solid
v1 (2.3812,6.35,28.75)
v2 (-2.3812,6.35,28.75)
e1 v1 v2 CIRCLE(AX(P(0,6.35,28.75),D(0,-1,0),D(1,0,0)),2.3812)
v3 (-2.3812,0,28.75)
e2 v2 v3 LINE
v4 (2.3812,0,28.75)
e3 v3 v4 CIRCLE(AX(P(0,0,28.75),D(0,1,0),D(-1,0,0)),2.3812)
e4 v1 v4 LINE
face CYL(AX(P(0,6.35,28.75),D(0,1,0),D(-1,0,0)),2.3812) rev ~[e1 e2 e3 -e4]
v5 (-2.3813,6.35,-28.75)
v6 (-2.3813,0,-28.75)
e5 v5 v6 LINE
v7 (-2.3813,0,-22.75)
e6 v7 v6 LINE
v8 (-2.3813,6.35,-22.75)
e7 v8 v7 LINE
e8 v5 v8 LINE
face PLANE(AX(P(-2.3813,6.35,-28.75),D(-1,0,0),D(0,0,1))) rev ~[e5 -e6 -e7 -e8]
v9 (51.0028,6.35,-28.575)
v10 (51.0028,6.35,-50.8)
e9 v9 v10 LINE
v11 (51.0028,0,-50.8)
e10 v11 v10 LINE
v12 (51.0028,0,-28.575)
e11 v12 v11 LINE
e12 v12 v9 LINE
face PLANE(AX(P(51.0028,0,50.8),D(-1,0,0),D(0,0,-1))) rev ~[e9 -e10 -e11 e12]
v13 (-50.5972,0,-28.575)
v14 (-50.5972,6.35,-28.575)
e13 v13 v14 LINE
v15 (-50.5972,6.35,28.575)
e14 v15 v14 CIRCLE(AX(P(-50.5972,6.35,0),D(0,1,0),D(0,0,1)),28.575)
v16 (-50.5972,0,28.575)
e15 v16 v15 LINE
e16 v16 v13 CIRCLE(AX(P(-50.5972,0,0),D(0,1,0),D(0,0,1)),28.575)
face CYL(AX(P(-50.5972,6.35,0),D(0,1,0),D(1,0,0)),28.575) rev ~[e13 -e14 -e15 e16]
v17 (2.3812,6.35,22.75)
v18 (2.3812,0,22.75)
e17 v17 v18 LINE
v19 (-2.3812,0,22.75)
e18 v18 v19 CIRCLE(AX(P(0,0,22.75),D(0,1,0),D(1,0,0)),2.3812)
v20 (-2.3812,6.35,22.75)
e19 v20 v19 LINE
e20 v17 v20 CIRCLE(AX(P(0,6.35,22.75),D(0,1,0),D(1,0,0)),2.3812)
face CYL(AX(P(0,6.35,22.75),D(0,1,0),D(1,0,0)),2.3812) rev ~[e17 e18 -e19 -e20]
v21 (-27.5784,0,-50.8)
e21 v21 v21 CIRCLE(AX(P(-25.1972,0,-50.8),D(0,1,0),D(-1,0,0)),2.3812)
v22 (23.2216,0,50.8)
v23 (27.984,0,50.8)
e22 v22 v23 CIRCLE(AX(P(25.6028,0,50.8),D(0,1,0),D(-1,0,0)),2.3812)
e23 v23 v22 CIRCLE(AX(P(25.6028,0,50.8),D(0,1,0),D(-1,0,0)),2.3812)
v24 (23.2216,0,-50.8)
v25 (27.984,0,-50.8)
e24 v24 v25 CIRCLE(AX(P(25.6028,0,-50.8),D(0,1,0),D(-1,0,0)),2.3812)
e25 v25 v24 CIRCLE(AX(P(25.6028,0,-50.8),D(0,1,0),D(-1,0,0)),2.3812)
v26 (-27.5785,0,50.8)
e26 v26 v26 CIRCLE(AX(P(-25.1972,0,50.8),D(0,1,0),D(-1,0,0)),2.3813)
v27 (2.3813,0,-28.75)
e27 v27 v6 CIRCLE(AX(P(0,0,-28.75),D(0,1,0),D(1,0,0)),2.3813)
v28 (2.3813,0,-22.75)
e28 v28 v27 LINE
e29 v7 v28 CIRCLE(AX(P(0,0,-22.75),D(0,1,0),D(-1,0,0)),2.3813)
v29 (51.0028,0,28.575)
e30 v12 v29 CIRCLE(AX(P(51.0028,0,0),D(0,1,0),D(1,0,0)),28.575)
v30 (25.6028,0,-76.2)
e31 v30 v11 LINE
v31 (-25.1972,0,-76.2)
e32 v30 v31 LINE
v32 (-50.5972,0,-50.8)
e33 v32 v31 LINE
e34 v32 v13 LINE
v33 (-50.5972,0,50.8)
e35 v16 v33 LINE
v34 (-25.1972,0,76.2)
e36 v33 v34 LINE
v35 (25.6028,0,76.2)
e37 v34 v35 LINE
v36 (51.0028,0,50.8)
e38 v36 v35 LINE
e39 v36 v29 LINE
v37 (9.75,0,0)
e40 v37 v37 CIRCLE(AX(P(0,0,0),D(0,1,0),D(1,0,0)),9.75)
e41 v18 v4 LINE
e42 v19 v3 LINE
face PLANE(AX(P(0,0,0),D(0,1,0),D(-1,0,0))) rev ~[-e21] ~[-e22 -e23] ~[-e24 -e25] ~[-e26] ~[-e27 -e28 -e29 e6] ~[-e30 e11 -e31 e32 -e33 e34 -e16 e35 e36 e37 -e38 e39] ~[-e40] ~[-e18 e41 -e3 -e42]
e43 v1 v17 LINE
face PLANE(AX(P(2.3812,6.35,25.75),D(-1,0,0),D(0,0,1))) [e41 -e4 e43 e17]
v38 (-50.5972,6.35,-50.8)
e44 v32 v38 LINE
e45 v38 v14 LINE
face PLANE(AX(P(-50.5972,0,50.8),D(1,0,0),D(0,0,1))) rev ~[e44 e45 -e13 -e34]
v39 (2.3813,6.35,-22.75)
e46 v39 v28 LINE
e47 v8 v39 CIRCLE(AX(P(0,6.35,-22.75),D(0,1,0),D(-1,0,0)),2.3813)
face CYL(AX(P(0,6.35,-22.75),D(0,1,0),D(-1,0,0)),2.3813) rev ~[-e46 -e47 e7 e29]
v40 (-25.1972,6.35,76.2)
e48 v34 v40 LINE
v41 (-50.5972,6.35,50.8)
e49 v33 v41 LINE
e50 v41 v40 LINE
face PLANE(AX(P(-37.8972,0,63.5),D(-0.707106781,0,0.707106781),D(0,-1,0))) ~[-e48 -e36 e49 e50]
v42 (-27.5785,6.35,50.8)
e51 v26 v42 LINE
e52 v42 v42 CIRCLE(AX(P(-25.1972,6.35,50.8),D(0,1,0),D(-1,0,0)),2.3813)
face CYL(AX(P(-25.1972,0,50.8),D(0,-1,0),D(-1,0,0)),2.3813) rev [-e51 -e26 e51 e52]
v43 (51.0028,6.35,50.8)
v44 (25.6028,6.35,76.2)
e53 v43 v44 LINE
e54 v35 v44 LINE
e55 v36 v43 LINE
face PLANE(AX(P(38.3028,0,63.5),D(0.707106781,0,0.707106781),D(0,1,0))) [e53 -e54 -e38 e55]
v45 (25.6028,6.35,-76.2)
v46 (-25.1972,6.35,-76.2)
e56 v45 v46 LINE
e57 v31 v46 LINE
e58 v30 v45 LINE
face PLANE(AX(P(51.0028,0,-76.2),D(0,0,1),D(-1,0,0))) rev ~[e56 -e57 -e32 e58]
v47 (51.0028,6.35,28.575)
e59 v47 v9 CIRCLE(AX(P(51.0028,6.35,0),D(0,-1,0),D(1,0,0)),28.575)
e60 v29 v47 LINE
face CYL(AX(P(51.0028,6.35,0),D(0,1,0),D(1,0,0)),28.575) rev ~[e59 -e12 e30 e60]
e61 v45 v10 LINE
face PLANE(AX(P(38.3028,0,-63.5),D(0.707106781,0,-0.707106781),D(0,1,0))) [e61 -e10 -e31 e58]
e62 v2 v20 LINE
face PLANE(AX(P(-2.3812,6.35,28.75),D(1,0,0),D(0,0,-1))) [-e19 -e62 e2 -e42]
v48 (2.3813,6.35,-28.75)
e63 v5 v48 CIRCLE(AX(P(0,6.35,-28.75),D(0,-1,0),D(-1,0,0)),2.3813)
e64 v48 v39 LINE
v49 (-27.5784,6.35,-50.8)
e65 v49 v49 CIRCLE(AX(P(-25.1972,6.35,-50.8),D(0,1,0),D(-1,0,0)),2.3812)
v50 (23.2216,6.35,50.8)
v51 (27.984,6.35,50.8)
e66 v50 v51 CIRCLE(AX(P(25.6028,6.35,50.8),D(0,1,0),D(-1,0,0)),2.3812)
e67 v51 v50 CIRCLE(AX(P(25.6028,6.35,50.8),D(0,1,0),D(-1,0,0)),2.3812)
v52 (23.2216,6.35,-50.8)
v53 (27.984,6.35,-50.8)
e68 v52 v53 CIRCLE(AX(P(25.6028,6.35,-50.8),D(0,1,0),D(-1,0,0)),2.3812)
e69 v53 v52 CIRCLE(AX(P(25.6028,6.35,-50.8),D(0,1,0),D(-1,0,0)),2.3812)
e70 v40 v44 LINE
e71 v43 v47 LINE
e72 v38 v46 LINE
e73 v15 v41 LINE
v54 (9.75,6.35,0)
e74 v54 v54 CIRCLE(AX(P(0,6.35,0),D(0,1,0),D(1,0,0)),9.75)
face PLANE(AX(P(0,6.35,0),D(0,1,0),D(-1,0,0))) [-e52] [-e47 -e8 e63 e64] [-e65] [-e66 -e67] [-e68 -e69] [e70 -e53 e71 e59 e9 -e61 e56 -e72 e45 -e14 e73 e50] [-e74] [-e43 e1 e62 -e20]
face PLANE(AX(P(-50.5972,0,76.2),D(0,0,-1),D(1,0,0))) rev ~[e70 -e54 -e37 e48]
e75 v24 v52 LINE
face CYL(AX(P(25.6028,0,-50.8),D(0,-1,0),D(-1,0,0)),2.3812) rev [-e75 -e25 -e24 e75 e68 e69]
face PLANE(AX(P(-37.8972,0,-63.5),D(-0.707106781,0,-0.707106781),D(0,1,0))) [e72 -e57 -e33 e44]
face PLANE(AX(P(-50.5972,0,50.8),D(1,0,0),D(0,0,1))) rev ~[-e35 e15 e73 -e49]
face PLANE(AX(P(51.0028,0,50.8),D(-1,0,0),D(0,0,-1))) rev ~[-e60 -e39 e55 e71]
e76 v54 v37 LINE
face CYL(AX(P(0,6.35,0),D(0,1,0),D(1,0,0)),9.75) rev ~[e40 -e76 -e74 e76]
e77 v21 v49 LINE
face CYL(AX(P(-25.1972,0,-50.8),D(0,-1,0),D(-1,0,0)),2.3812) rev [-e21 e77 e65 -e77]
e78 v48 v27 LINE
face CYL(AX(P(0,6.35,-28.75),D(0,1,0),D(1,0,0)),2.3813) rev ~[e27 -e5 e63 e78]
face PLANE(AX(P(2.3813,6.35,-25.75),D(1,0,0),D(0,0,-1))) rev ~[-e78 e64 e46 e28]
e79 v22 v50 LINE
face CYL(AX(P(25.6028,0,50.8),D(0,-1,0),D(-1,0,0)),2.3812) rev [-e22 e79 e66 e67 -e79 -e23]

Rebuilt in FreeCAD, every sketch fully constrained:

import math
import FreeCAD as App
import Part
import Sketcher
from FreeCAD import Vector
Q = App.Units.Quantity


def edges_at(feature, points):
    """Names of the edges that pass closest to the given points."""
    edges = feature.Shape.Edges
    near = lambda p: min(range(len(edges)), key=lambda i: edges[i].distToShape(Part.Vertex(*p))[0])
    return sorted({f"Edge{near(p) + 1}" for p in points})


def add_polygon(sketch, points):
    """Adds a closed chain of lines whose ends are joined by coincident constraints."""
    first, n = sketch.GeometryCount, len(points)
    for a, b in zip(points, points[1:] + points[:1]):
        sketch.addGeometry(Part.LineSegment(App.Vector(*a, 0), App.Vector(*b, 0)), False)
    for i in range(n):
        sketch.addConstraint(Sketcher.Constraint("Coincident", first + i, 2, first + (i + 1) % n, 1))

doc = App.newDocument("Part")
body = doc.addObject("PartDesign::Body", "Body")

sketch1 = body.newObject("Sketcher::SketchObject", "Sketch")
sketch1.AttachmentSupport = (doc.getObject("XZ_Plane"), [""])
sketch1.MapMode = "FlatFace"
add_polygon(sketch1, [(51, -50.8), (51, -76.2), (-50.6, -76.2), (-50.6, -50.8), (-50.6, 50.8), (-50.6, 76.2), (51, 76.2), (51, 50.8)])
sketch1.addGeometry(Part.ArcOfCircle(Part.Circle(Vector(0.2, 19.4, 0), Vector(0, 0, 1), 2.4), math.radians(180), math.radians(360)), False)
sketch1.addGeometry(Part.LineSegment(Vector(2.6, 19.4, 0), Vector(2.6, 32.1, 0)), False)
sketch1.addGeometry(Part.ArcOfCircle(Part.Circle(Vector(0.2, 32.1, 0), Vector(0, 0, 1), 2.4), math.radians(0), math.radians(180)), False)
sketch1.addGeometry(Part.LineSegment(Vector(-2.2, 32.1, 0), Vector(-2.2, 19.4, 0)), False)
sketch1.addGeometry(Part.LineSegment(Vector(-2.2, -19.4, 0), Vector(-2.2, -32.1, 0)), False)
sketch1.addGeometry(Part.ArcOfCircle(Part.Circle(Vector(0.2, -32.1, 0), Vector(0, 0, 1), 2.4), math.radians(180), math.radians(360)), False)
sketch1.addGeometry(Part.LineSegment(Vector(2.6, -32.1, 0), Vector(2.6, -19.4, 0)), False)
sketch1.addGeometry(Part.ArcOfCircle(Part.Circle(Vector(0.2, -19.4, 0), Vector(0, 0, 1), 2.4), math.radians(0), math.radians(180)), False)
sketch1.addGeometry(Part.Circle(Vector(25.6, -50.8, 0), Vector(0, 0, 1), 2.4), False)
sketch1.addGeometry(Part.Circle(Vector(-25.2, -50.8, 0), Vector(0, 0, 1), 2.4), False)
sketch1.addGeometry(Part.Circle(Vector(25.6, 50.8, 0), Vector(0, 0, 1), 2.4), False)
sketch1.addGeometry(Part.Circle(Vector(-25.2, 50.8, 0), Vector(0, 0, 1), 2.4), False)
sketch1.addConstraint([
    Sketcher.Constraint("Tangent", 8, 2, 9, 1),
    Sketcher.Constraint("Tangent", 9, 2, 10, 1),
    Sketcher.Constraint("Tangent", 10, 2, 11, 1),
    Sketcher.Constraint("Tangent", 11, 2, 8, 1),
    Sketcher.Constraint("Tangent", 12, 2, 13, 1),
    Sketcher.Constraint("Tangent", 13, 2, 14, 1),
    Sketcher.Constraint("Tangent", 14, 2, 15, 1),
    Sketcher.Constraint("Tangent", 15, 2, 12, 1),
    Sketcher.Constraint("Vertical", 0),
    Sketcher.Constraint("Horizontal", 1),
    Sketcher.Constraint("Vertical", 2),
    Sketcher.Constraint("Vertical", 3),
    Sketcher.Constraint("Vertical", 4),
    Sketcher.Constraint("Horizontal", 5),
    Sketcher.Constraint("Vertical", 6),
    Sketcher.Constraint("Vertical", 7),
    Sketcher.Constraint("Vertical", 9),
    Sketcher.Constraint("Vertical", 11),
    Sketcher.Constraint("Vertical", 12),
    Sketcher.Constraint("Vertical", 14),
    Sketcher.Constraint("Equal", 10, 13),
    Sketcher.Constraint("Equal", 15, 16),
    Sketcher.Constraint("Equal", 16, 17),
    Sketcher.Constraint("Equal", 17, 18),
    Sketcher.Constraint("Equal", 18, 19),
    Sketcher.Constraint("Symmetric", 10, 3, 13, 3, -1),
    Sketcher.Constraint("Symmetric", 16, 3, 18, 3, -1),
    Sketcher.Constraint("Symmetric", 17, 3, 19, 3, -1),
    Sketcher.Constraint("Horizontal", 16, 3, 17, 3),
    Sketcher.Constraint("Horizontal", 17, 3, 2, 2),
    Sketcher.Constraint("Horizontal", 19, 3, 3, 2),
    Sketcher.Constraint("Horizontal", 3, 2, 6, 2),
    Sketcher.Constraint("Horizontal", 2, 2, 7, 2),
    Sketcher.Constraint("Equal", 5, 3),
    Sketcher.Constraint("Equal", 2, 4),
    Sketcher.Constraint("Equal", 11, 12),
    Sketcher.Constraint("DistanceX", 1, 2, 1, 1, Q("4 in")),
    Sketcher.Constraint("DistanceY", 0, 2, 0, 1, Q("1 in")),
    Sketcher.Constraint("Diameter", 16, Q("0.1875 in")),
    Sketcher.Constraint("DistanceX", 13, 3, 16, 3, Q("1 in")),
    Sketcher.Constraint("DistanceX", 17, 3, 13, 3, Q("1 in")),
    Sketcher.Constraint("DistanceX", 16, 3, 0, 2, Q("1 in")),
    Sketcher.Constraint("DistanceY", 9, 1, 9, 2, Q("0.5 in")),
    Sketcher.Constraint("DistanceX", -1, 1, 8, 3, Q("0.2028 mm")),
    Sketcher.Constraint("DistanceY", -1, 1, 8, 3, Q("19.4 mm")),
])
pad1 = body.newObject("PartDesign::Pad", "Pad")
pad1.Profile = sketch1
pad1.Length = Q("0.25 in")
pad1.Reversed = True

sketch2 = body.newObject("Sketcher::SketchObject", "Sketch001")
sketch2.AttachmentSupport = (doc.getObject("XZ_Plane"), [""])
sketch2.MapMode = "FlatFace"
sketch2.AttachmentOffset = App.Placement(Vector(0, 0, -0.25 * 25.4), App.Rotation())
sketch2.addGeometry(Part.Circle(Vector(0, 0, 0), Vector(0, 0, 1), 10), False)
sketch2.addConstraint([
    Sketcher.Constraint("Coincident", 0, 3, -1, 1),
    Sketcher.Constraint("Diameter", 0, Q("19.5 mm")),
])
pocket1 = body.newObject("PartDesign::Pocket", "Pocket")
pocket1.Profile = sketch2
pocket1.Length = Q("0.25 in")
pocket1.Reversed = True

sketch3 = body.newObject("Sketcher::SketchObject", "Sketch002")
sketch3.AttachmentSupport = (doc.getObject("XZ_Plane"), [""])
sketch3.MapMode = "FlatFace"
sketch3.AttachmentOffset = App.Placement(Vector(0, 0, -0.25 * 25.4), App.Rotation())
add_polygon(sketch3, [(-7, 16), (-7, 38), (10, 38), (10, 16)])
add_polygon(sketch3, [(-9, -42), (-9, -15), (5, -15), (5, -42)])
sketch3.addConstraint([
    Sketcher.Constraint("Vertical", 0),
    Sketcher.Constraint("Horizontal", 1),
    Sketcher.Constraint("Vertical", 2),
    Sketcher.Constraint("Horizontal", 3),
    Sketcher.Constraint("Vertical", 4),
    Sketcher.Constraint("Horizontal", 5),
    Sketcher.Constraint("Vertical", 6),
    Sketcher.Constraint("Horizontal", 7),
    Sketcher.Constraint("DistanceX", 1, 1, 1, 2, Q("0.6641 in")),
    Sketcher.Constraint("DistanceY", 4, 1, 4, 2, Q("1.0387 in")),
    Sketcher.Constraint("DistanceX", 5, 1, 5, 2, Q("14.489 mm")),
    Sketcher.Constraint("DistanceY", 0, 1, 0, 2, Q("21.95 mm")),
    Sketcher.Constraint("DistanceX", 0, 2, -1, 1, Q("6.64 mm")),
    Sketcher.Constraint("DistanceY", -1, 1, 0, 2, Q("37.7246 mm")),
    Sketcher.Constraint("DistanceX", 4, 2, -1, 1, Q("9.235 mm")),
    Sketcher.Constraint("DistanceY", 4, 2, -1, 1, Q("15.4742 mm")),
])
pad2 = body.newObject("PartDesign::Pad", "Pad001")
pad2.Profile = sketch3
pad2.Length = Q("0.25 in")

sketch4 = body.newObject("Sketcher::SketchObject", "Sketch003")
sketch4.AttachmentSupport = (doc.getObject("XZ_Plane"), [""])
sketch4.MapMode = "FlatFace"
sketch4.AttachmentOffset = App.Placement(Vector(0, 0, -0.25 * 25.4), App.Rotation())
sketch4.addGeometry([
    Part.ArcOfCircle(Part.Circle(Vector(0, -28.8, 0), Vector(0, 0, 1), 2.4), math.radians(180), math.radians(360)),
    Part.LineSegment(Vector(-2.4, -28.8, 0), Vector(-2.4, -22.8, 0)),
    Part.ArcOfCircle(Part.Circle(Vector(0, -22.8, 0), Vector(0, 0, 1), 2.4), math.radians(0), math.radians(180)),
    Part.LineSegment(Vector(2.4, -22.8, 0), Vector(2.4, -28.8, 0)),
    Part.ArcOfCircle(Part.Circle(Vector(0, 28.8, 0), Vector(0, 0, 1), 2.4), math.radians(0), math.radians(180)),
    Part.LineSegment(Vector(2.4, 28.8, 0), Vector(2.4, 22.8, 0)),
    Part.ArcOfCircle(Part.Circle(Vector(0, 22.8, 0), Vector(0, 0, 1), 2.4), math.radians(180), math.radians(360)),
    Part.LineSegment(Vector(-2.4, 22.8, 0), Vector(-2.4, 28.8, 0)),
], False)
sketch4.addConstraint([
    Sketcher.Constraint("Tangent", 0, 1, 1, 1),
    Sketcher.Constraint("Tangent", 1, 2, 2, 2),
    Sketcher.Constraint("Tangent", 2, 1, 3, 1),
    Sketcher.Constraint("Tangent", 3, 2, 0, 2),
    Sketcher.Constraint("Tangent", 4, 1, 5, 1),
    Sketcher.Constraint("Tangent", 5, 2, 6, 2),
    Sketcher.Constraint("Tangent", 6, 1, 7, 1),
    Sketcher.Constraint("Tangent", 7, 2, 4, 2),
    Sketcher.Constraint("Vertical", 1),
    Sketcher.Constraint("Vertical", 3),
    Sketcher.Constraint("Vertical", 5),
    Sketcher.Constraint("Vertical", 7),
    Sketcher.Constraint("Equal", 2, 4),
    Sketcher.Constraint("Symmetric", 0, 3, 4, 3, -1, 1),
    Sketcher.Constraint("Symmetric", 2, 3, 6, 3, -1),
    Sketcher.Constraint("Radius", 0, Q("0.093752 in")),
    Sketcher.Constraint("DistanceY", 1, 1, 1, 2, Q("6 mm")),
    Sketcher.Constraint("DistanceY", 0, 3, -1, 1, Q("1.1319 in")),
])
pocket2 = body.newObject("PartDesign::Pocket", "Pocket001")
pocket2.Profile = sketch4
pocket2.Length = Q("0.25 in")
pocket2.Reversed = True
doc.recompute()

chamfer = body.newObject("PartDesign::Chamfer", "Chamfer")
chamfer.Base = (pocket2, edges_at(pocket2, [
    (-50.597, 3.175, 76.2),
    (51.003, 3.175, 76.2),
    (-50.597, 3.175, -76.2),
    (51.003, 3.175, -76.2),
]))
chamfer.Size = Q("1 in")

sketch5 = body.newObject("Sketcher::SketchObject", "Sketch004")
sketch5.AttachmentSupport = (doc.getObject("XZ_Plane"), [""])
sketch5.MapMode = "FlatFace"
sketch5.AttachmentOffset = App.Placement(Vector(0, 0, -0.25 * 25.4), App.Rotation())
sketch5.addGeometry([
    Part.Circle(Vector(-51, 0, 0), Vector(0, 0, 1), 29),
    Part.Circle(Vector(51, 0, 0), Vector(0, 0, 1), 29),
], False)
sketch5.addConstraint([
    Sketcher.Constraint("Equal", 0, 1),
    Sketcher.Constraint("PointOnObject", 0, 3, -1),
    Sketcher.Constraint("PointOnObject", 1, 3, -1),
    Sketcher.Constraint("Diameter", 0, Q("2.25 in")),
    Sketcher.Constraint("DistanceX", 0, 3, 1, 3, Q("4 in")),
    Sketcher.Constraint("DistanceX", 0, 3, -1, 1, Q("50.5972 mm")),
])
pocket3 = body.newObject("PartDesign::Pocket", "Pocket002")
pocket3.Profile = sketch5
pocket3.Length = Q("0.25 in")
pocket3.Reversed = True

doc.recompute()
